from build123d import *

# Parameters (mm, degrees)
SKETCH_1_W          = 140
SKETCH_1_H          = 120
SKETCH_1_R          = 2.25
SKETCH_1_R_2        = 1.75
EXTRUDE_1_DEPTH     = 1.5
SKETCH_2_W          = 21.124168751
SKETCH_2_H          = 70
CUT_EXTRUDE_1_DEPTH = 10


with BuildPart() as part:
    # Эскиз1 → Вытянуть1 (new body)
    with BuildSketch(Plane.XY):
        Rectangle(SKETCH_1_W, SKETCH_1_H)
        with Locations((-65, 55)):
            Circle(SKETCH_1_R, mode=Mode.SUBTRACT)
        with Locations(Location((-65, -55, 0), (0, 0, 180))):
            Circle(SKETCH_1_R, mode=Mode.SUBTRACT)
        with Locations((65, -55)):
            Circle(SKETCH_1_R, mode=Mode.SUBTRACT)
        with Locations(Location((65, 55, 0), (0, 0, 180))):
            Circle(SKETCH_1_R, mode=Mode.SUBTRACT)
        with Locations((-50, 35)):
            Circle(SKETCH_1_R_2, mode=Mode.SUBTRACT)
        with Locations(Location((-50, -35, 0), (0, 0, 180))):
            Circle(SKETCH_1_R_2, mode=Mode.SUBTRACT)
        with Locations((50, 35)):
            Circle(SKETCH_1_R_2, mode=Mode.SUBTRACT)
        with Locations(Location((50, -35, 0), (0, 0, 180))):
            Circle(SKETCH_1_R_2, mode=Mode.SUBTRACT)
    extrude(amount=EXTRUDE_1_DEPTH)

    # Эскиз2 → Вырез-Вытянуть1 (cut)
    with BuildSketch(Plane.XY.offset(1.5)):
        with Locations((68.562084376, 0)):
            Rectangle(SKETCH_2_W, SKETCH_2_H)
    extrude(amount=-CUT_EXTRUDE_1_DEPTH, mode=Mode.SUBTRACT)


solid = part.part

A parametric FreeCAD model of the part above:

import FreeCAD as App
import Part
import Sketcher
Q = App.Units.Quantity

doc = App.newDocument("Part")
body = doc.addObject("PartDesign::Body", "Body")

# Sketch on XY plane
sketch1 = body.newObject("Sketcher::SketchObject", "Sketch")
sketch1.AttachmentSupport = (doc.getObject("XY_Plane"), [""])
sketch1.MapMode = "FlatFace"
sketch1.addGeometry(Part.LineSegment(App.Vector(-70, 60, 0), App.Vector(-70, -60, 0)), False)
sketch1.addGeometry(Part.LineSegment(App.Vector(-70, -60, 0), App.Vector(70, -60, 0)), False)
sketch1.addGeometry(Part.LineSegment(App.Vector(70, -60, 0), App.Vector(70, 60, 0)), False)
sketch1.addGeometry(Part.LineSegment(App.Vector(70, 60, 0), App.Vector(-70, 60, 0)), False)
sketch1.addGeometry(Part.Circle(App.Vector(-65, -55, 0), App.Vector(0, 0, 1), 2.2), False)
sketch1.addGeometry(Part.Circle(App.Vector(-50, -35, 0), App.Vector(0, 0, 1), 1.8), False)
sketch1.addGeometry(Part.Circle(App.Vector(65, -55, 0), App.Vector(0, 0, 1), 2.2), False)
sketch1.addGeometry(Part.Circle(App.Vector(50, -35, 0), App.Vector(0, 0, 1), 1.8), False)
sketch1.addGeometry(Part.Circle(App.Vector(-50, 35, 0), App.Vector(0, 0, 1), 1.8), False)
sketch1.addGeometry(Part.Circle(App.Vector(-65, 55, 0), App.Vector(0, 0, 1), 2.2), False)
sketch1.addGeometry(Part.Circle(App.Vector(50, 35, 0), App.Vector(0, 0, 1), 1.8), False)
sketch1.addGeometry(Part.Circle(App.Vector(65, 55, 0), App.Vector(0, 0, 1), 2.2), False)
sketch1.addConstraint(Sketcher.Constraint("Coincident", 0, 2, 1, 1))
sketch1.addConstraint(Sketcher.Constraint("Coincident", 1, 2, 2, 1))
sketch1.addConstraint(Sketcher.Constraint("Coincident", 2, 2, 3, 1))
sketch1.addConstraint(Sketcher.Constraint("Coincident", 3, 2, 0, 1))
sketch1.addConstraint(Sketcher.Constraint("Vertical", 0))
sketch1.addConstraint(Sketcher.Constraint("Horizontal", 1))
sketch1.addConstraint(Sketcher.Constraint("Vertical", 2))
sketch1.addConstraint(Sketcher.Constraint("Horizontal", 3))
sketch1.addConstraint(Sketcher.Constraint("Equal", 4, 6))
sketch1.addConstraint(Sketcher.Constraint("Equal", 5, 7))
sketch1.addConstraint(Sketcher.Constraint("Equal", 7, 8))
sketch1.addConstraint(Sketcher.Constraint("Equal", 6, 9))
sketch1.addConstraint(Sketcher.Constraint("Equal", 8, 10))
sketch1.addConstraint(Sketcher.Constraint("Equal", 9, 11))
sketch1.addConstraint(Sketcher.Constraint("Symmetric", 7, 3, 8, 3, -1, 1))
sketch1.addConstraint(Sketcher.Constraint("Symmetric", 6, 3, 9, 3, -1, 1))
sketch1.addConstraint(Sketcher.Constraint("Symmetric", 5, 3, 10, 3, -1, 1))
sketch1.addConstraint(Sketcher.Constraint("Symmetric", 4, 3, 11, 3, -1, 1))
sketch1.addConstraint(Sketcher.Constraint("Symmetric", 0, 2, 2, 2, -1, 1))
sketch1.addConstraint(Sketcher.Constraint("Symmetric", 4, 3, 6, 3, -2))
sketch1.addConstraint(Sketcher.Constraint("Symmetric", 5, 3, 7, 3, -2))
sketch1.addConstraint(Sketcher.Constraint("Diameter", 4, Q("4.5 mm")))
sketch1.addConstraint(Sketcher.Constraint("Diameter", 5, Q("3.5 mm")))
sketch1.addConstraint(Sketcher.Constraint("DistanceX", 1, 1, 1, 2, Q("140 mm")))
sketch1.addConstraint(Sketcher.Constraint("DistanceY", 0, 2, 0, 1, Q("120 mm")))
sketch1.addConstraint(Sketcher.Constraint("DistanceX", 4, 3, -1, 1, Q("65 mm")))
sketch1.addConstraint(Sketcher.Constraint("DistanceY", 4, 3, -1, 1, Q("55 mm")))
sketch1.addConstraint(Sketcher.Constraint("DistanceX", 5, 3, -1, 1, Q("50 mm")))
sketch1.addConstraint(Sketcher.Constraint("DistanceY", 5, 3, -1, 1, Q("35 mm")))
pad1 = body.newObject("PartDesign::Pad", "Pad")
pad1.Profile = sketch1
pad1.Length = 1.5

# Sketch on XY plane
sketch2 = body.newObject("Sketcher::SketchObject", "Sketch001")
sketch2.AttachmentSupport = (doc.getObject("XY_Plane"), [""])
sketch2.MapMode = "FlatFace"
sketch2.AttachmentOffset = App.Placement(App.Vector(0, 0, 1.5), App.Rotation())
sketch2.addGeometry(Part.LineSegment(App.Vector(58, 35, 0), App.Vector(58, -35, 0)), False)
sketch2.addGeometry(Part.LineSegment(App.Vector(58, -35, 0), App.Vector(79, -35, 0)), False)
sketch2.addGeometry(Part.LineSegment(App.Vector(79, -35, 0), App.Vector(79, 35, 0)), False)
sketch2.addGeometry(Part.LineSegment(App.Vector(79, 35, 0), App.Vector(58, 35, 0)), False)
sketch2.addConstraint(Sketcher.Constraint("Coincident", 0, 2, 1, 1))
sketch2.addConstraint(Sketcher.Constraint("Coincident", 1, 2, 2, 1))
sketch2.addConstraint(Sketcher.Constraint("Coincident", 2, 2, 3, 1))
sketch2.addConstraint(Sketcher.Constraint("Coincident", 3, 2, 0, 1))
sketch2.addConstraint(Sketcher.Constraint("Vertical", 0))
sketch2.addConstraint(Sketcher.Constraint("Horizontal", 1))
sketch2.addConstraint(Sketcher.Constraint("Vertical", 2))
sketch2.addConstraint(Sketcher.Constraint("Horizontal", 3))
sketch2.addConstraint(Sketcher.Constraint("DistanceY", 0, 2, 0, 1, Q("70 mm")))
sketch2.addConstraint(Sketcher.Constraint("DistanceX", -1, 1, 0, 2, Q("58 mm")))
sketch2.addConstraint(Sketcher.Constraint("DistanceY", 0, 2, -1, 1, Q("35 mm")))
sketch2.addConstraint(Sketcher.Constraint("DistanceX", 1, 1, 1, 2, Q("21.124169 mm")))
pocket1 = body.newObject("PartDesign::Pocket", "Pocket")
pocket1.Profile = sketch2
pocket1.Length = 10

doc.recompute()
